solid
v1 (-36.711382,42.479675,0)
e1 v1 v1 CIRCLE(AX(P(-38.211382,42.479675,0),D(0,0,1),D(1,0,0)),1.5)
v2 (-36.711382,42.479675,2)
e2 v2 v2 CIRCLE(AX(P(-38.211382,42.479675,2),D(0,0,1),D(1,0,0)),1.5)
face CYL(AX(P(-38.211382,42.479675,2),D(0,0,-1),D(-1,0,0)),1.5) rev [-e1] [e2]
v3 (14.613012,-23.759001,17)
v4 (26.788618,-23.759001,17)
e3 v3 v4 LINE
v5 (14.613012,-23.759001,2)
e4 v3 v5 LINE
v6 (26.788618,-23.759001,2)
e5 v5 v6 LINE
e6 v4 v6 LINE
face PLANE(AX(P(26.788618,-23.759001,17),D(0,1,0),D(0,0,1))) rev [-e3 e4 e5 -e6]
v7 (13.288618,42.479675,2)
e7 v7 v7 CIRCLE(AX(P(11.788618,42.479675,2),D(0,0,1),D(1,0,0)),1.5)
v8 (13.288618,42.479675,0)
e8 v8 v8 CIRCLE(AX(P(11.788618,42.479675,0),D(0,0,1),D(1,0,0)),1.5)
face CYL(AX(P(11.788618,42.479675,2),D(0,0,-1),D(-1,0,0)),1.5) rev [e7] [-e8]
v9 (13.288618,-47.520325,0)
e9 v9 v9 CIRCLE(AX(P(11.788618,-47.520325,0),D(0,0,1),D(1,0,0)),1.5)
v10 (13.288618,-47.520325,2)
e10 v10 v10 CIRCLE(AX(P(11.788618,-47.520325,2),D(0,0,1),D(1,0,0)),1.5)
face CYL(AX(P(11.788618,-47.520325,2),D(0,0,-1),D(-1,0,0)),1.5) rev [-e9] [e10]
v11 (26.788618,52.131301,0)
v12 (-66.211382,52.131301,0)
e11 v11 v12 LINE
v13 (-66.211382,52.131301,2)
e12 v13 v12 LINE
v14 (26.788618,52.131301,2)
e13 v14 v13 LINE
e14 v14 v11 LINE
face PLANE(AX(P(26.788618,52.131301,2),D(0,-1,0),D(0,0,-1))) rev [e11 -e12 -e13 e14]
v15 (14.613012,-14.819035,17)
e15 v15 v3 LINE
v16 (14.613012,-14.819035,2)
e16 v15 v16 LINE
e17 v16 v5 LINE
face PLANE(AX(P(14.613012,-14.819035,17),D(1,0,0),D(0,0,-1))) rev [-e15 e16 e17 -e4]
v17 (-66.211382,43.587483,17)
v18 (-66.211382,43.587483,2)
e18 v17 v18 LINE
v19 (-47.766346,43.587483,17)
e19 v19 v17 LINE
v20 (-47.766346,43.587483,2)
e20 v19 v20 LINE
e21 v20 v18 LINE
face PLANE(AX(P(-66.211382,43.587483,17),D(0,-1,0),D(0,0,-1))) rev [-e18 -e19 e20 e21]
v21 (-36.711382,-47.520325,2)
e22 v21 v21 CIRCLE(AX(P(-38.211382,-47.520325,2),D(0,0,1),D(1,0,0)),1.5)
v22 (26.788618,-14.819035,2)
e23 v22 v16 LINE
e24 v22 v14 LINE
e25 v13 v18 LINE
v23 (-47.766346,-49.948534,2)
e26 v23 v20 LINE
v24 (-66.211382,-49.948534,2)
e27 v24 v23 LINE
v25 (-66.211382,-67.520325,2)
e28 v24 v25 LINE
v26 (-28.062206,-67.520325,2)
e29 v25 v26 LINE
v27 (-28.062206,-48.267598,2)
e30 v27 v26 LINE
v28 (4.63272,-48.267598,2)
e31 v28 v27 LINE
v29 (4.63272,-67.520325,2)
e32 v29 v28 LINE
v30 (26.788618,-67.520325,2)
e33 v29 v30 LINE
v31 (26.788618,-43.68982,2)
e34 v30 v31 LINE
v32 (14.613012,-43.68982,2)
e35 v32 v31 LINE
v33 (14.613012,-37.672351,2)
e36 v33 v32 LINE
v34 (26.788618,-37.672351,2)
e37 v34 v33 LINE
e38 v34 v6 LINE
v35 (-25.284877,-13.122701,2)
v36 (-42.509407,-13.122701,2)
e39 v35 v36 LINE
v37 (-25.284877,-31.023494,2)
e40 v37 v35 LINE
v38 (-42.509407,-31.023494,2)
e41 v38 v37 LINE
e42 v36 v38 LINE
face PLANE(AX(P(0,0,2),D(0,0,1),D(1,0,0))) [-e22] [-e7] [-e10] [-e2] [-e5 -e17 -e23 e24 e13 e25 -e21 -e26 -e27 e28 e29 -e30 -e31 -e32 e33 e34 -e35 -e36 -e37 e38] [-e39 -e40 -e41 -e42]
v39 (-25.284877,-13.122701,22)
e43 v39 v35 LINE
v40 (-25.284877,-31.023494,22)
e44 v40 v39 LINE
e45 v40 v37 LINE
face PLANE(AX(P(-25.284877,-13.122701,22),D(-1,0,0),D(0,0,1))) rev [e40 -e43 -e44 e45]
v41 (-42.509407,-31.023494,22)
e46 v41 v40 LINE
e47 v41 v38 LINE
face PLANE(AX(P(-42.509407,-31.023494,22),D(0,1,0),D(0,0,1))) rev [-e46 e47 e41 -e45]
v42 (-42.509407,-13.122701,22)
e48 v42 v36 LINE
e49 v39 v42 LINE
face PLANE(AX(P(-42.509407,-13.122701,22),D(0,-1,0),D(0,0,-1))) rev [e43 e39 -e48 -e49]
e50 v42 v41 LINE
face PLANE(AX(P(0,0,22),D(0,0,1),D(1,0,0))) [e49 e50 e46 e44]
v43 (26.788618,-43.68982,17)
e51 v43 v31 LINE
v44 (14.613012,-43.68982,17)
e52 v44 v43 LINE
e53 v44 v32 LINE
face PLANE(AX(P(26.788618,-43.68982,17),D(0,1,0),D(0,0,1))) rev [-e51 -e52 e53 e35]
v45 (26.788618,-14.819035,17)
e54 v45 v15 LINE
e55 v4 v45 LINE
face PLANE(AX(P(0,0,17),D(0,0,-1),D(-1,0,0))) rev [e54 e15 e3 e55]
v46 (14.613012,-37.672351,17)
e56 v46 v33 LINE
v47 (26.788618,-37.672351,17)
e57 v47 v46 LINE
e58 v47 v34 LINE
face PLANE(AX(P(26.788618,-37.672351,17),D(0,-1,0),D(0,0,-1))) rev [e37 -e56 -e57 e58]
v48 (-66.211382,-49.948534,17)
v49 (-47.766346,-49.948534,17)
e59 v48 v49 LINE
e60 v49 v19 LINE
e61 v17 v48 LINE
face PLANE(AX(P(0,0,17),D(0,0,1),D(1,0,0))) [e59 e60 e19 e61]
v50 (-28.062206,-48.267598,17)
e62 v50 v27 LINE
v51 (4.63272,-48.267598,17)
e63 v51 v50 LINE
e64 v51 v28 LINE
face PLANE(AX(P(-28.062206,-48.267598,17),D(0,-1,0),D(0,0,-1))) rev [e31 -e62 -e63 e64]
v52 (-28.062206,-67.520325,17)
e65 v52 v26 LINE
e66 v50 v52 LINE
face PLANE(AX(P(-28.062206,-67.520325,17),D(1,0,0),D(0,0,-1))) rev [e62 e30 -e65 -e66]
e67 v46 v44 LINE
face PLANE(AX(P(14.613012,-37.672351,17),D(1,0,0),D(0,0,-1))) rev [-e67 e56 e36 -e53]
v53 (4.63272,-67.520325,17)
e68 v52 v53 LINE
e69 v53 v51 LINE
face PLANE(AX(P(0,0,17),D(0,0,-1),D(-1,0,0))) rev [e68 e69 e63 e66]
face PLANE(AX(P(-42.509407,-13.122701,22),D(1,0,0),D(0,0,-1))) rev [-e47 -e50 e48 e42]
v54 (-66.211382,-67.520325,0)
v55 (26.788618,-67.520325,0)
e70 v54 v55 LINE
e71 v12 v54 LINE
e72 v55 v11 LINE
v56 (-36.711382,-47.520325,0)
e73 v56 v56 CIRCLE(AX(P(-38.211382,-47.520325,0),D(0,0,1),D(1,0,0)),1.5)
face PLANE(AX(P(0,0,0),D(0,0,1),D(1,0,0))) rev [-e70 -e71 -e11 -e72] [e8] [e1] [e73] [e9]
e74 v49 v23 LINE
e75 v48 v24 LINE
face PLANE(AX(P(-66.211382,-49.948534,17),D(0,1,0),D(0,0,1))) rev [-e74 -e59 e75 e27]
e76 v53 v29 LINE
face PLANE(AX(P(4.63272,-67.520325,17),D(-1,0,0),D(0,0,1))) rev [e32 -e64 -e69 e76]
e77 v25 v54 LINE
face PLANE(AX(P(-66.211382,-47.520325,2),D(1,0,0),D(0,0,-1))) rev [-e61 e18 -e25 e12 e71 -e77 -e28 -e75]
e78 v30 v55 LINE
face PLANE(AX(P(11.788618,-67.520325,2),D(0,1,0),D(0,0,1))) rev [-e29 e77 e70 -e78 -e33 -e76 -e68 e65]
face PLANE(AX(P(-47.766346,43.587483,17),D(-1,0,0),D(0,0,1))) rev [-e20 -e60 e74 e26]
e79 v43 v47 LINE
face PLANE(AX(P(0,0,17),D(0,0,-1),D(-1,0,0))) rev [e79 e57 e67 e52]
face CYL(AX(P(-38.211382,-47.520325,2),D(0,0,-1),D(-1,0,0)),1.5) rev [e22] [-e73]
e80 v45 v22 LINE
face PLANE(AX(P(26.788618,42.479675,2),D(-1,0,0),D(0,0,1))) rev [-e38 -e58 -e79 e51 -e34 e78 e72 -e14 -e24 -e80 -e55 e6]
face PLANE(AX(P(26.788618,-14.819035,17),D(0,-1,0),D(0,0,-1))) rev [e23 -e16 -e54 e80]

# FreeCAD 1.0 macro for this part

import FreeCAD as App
import Part
import Sketcher
from FreeCAD import Vector
Q = App.Units.Quantity

doc = App.newDocument("Part")
body = doc.addObject("PartDesign::Body", "Body")

# Sketch on XY plane
sketch1 = body.newObject("Sketcher::SketchObject", "Sketch")
sketch1.AttachmentSupport = (doc.getObject("XY_Plane"), [""])
sketch1.MapMode = "FlatFace"
sketch1.addGeometry(Part.LineSegment(Vector(-66.2, -67.5, 0), Vector(26.8, -67.5, 0)), False)
sketch1.addGeometry(Part.LineSegment(Vector(26.8, -67.5, 0), Vector(26.8, 52.1, 0)), False)
sketch1.addGeometry(Part.LineSegment(Vector(26.8, 52.1, 0), Vector(-66.2, 52.1, 0)), False)
sketch1.addGeometry(Part.LineSegment(Vector(-66.2, 52.1, 0), Vector(-66.2, -67.5, 0)), False)
sketch1.addGeometry(Part.Circle(Vector(-38.2, -47.5, 0), Vector(0, 0, 1), 1.5), False)
sketch1.addGeometry(Part.Circle(Vector(11.8, -47.5, 0), Vector(0, 0, 1), 1.5), False)
sketch1.addGeometry(Part.Circle(Vector(-38.2, 42.5, 0), Vector(0, 0, 1), 1.5), False)
sketch1.addGeometry(Part.Circle(Vector(11.8, 42.5, 0), Vector(0, 0, 1), 1.5), False)
sketch1.addConstraint(Sketcher.Constraint("Coincident", 0, 2, 1, 1))
sketch1.addConstraint(Sketcher.Constraint("Coincident", 1, 2, 2, 1))
sketch1.addConstraint(Sketcher.Constraint("Coincident", 2, 2, 3, 1))
sketch1.addConstraint(Sketcher.Constraint("Coincident", 3, 2, 0, 1))
sketch1.addConstraint(Sketcher.Constraint("Horizontal", 0))
sketch1.addConstraint(Sketcher.Constraint("Vertical", 1))
sketch1.addConstraint(Sketcher.Constraint("Horizontal", 2))
sketch1.addConstraint(Sketcher.Constraint("Vertical", 3))
sketch1.addConstraint(Sketcher.Constraint("Equal", 4, 5))
sketch1.addConstraint(Sketcher.Constraint("Equal", 5, 6))
sketch1.addConstraint(Sketcher.Constraint("Equal", 6, 7))
sketch1.addConstraint(Sketcher.Constraint("Horizontal", 4, 3, 5, 3))
sketch1.addConstraint(Sketcher.Constraint("Horizontal", 6, 3, 7, 3))
sketch1.addConstraint(Sketcher.Constraint("Vertical", 4, 3, 6, 3))
sketch1.addConstraint(Sketcher.Constraint("Vertical", 5, 3, 7, 3))
sketch1.addConstraint(Sketcher.Constraint("Diameter", 4, Q("3 mm")))
sketch1.addConstraint(Sketcher.Constraint("DistanceX", 0, 1, 0, 2, Q("93 mm")))
sketch1.addConstraint(Sketcher.Constraint("DistanceX", 4, 3, 5, 3, Q("50 mm")))
sketch1.addConstraint(Sketcher.Constraint("DistanceY", 4, 3, 6, 3, Q("90 mm")))
sketch1.addConstraint(Sketcher.Constraint("DistanceX", 5, 3, 0, 2, Q("15 mm")))
sketch1.addConstraint(Sketcher.Constraint("DistanceY", 0, 2, 5, 3, Q("20 mm")))
sketch1.addConstraint(Sketcher.Constraint("DistanceY", -1, 1, 1, 2, Q("52.131301 mm")))
sketch1.addConstraint(Sketcher.Constraint("DistanceY", 1, 1, 1, 2, Q("119.651626 mm")))
sketch1.addConstraint(Sketcher.Constraint("DistanceX", 4, 3, -1, 1, Q("38.211382 mm")))
pad1 = body.newObject("PartDesign::Pad", "Pad")
pad1.Profile = sketch1
pad1.Length = 2

# Sketch on XY plane
sketch2 = body.newObject("Sketcher::SketchObject", "Sketch001")
sketch2.AttachmentSupport = (doc.getObject("XY_Plane"), [""])
sketch2.MapMode = "FlatFace"
sketch2.AttachmentOffset = App.Placement(Vector(0, 0, 2), App.Rotation())
sketch2.addGeometry(Part.LineSegment(Vector(-66, 44, 0), Vector(-66, -50, 0)), False)
sketch2.addGeometry(Part.LineSegment(Vector(-66, -50, 0), Vector(-48, -50, 0)), False)
sketch2.addGeometry(Part.LineSegment(Vector(-48, -50, 0), Vector(-48, 44, 0)), False)
sketch2.addGeometry(Part.LineSegment(Vector(-48, 44, 0), Vector(-66, 44, 0)), False)
sketch2.addGeometry(Part.LineSegment(Vector(-28, -48, 0), Vector(-28, -68, 0)), False)
sketch2.addGeometry(Part.LineSegment(Vector(-28, -68, 0), Vector(5, -68, 0)), False)
sketch2.addGeometry(Part.LineSegment(Vector(5, -68, 0), Vector(5, -48, 0)), False)
sketch2.addGeometry(Part.LineSegment(Vector(5, -48, 0), Vector(-28, -48, 0)), False)
sketch2.addGeometry(Part.LineSegment(Vector(15, -15, 0), Vector(15, -24, 0)), False)
sketch2.addGeometry(Part.LineSegment(Vector(15, -24, 0), Vector(27, -24, 0)), False)
sketch2.addGeometry(Part.LineSegment(Vector(27, -24, 0), Vector(27, -15, 0)), False)
sketch2.addGeometry(Part.LineSegment(Vector(27, -15, 0), Vector(15, -15, 0)), False)
sketch2.addGeometry(Part.LineSegment(Vector(15, -38, 0), Vector(15, -44, 0)), False)
sketch2.addGeometry(Part.LineSegment(Vector(15, -44, 0), Vector(27, -44, 0)), False)
sketch2.addGeometry(Part.LineSegment(Vector(27, -44, 0), Vector(27, -38, 0)), False)
sketch2.addGeometry(Part.LineSegment(Vector(27, -38, 0), Vector(15, -38, 0)), False)
sketch2.addConstraint(Sketcher.Constraint("Coincident", 0, 2, 1, 1))
sketch2.addConstraint(Sketcher.Constraint("Coincident", 1, 2, 2, 1))
sketch2.addConstraint(Sketcher.Constraint("Coincident", 2, 2, 3, 1))
sketch2.addConstraint(Sketcher.Constraint("Coincident", 3, 2, 0, 1))
sketch2.addConstraint(Sketcher.Constraint("Coincident", 4, 2, 5, 1))
sketch2.addConstraint(Sketcher.Constraint("Coincident", 5, 2, 6, 1))
sketch2.addConstraint(Sketcher.Constraint("Coincident", 6, 2, 7, 1))
sketch2.addConstraint(Sketcher.Constraint("Coincident", 7, 2, 4, 1))
sketch2.addConstraint(Sketcher.Constraint("Coincident", 8, 2, 9, 1))
sketch2.addConstraint(Sketcher.Constraint("Coincident", 9, 2, 10, 1))
sketch2.addConstraint(Sketcher.Constraint("Coincident", 10, 2, 11, 1))
sketch2.addConstraint(Sketcher.Constraint("Coincident", 11, 2, 8, 1))
sketch2.addConstraint(Sketcher.Constraint("Coincident", 12, 2, 13, 1))
sketch2.addConstraint(Sketcher.Constraint("Coincident", 13, 2, 14, 1))
sketch2.addConstraint(Sketcher.Constraint("Coincident", 14, 2, 15, 1))
sketch2.addConstraint(Sketcher.Constraint("Coincident", 15, 2, 12, 1))
sketch2.addConstraint(Sketcher.Constraint("Vertical", 0))
sketch2.addConstraint(Sketcher.Constraint("Horizontal", 1))
sketch2.addConstraint(Sketcher.Constraint("Vertical", 2))
sketch2.addConstraint(Sketcher.Constraint("Horizontal", 3))
sketch2.addConstraint(Sketcher.Constraint("Vertical", 4))
sketch2.addConstraint(Sketcher.Constraint("Horizontal", 5))
sketch2.addConstraint(Sketcher.Constraint("Vertical", 6))
sketch2.addConstraint(Sketcher.Constraint("Horizontal", 7))
sketch2.addConstraint(Sketcher.Constraint("Vertical", 8))
sketch2.addConstraint(Sketcher.Constraint("Horizontal", 9))
sketch2.addConstraint(Sketcher.Constraint("Vertical", 10))
sketch2.addConstraint(Sketcher.Constraint("Horizontal", 11))
sketch2.addConstraint(Sketcher.Constraint("Vertical", 12))
sketch2.addConstraint(Sketcher.Constraint("Horizontal", 13))
sketch2.addConstraint(Sketcher.Constraint("Vertical", 14))
sketch2.addConstraint(Sketcher.Constraint("Horizontal", 15))
sketch2.addConstraint(Sketcher.Constraint("Vertical", 11, 2, 12, 2))
sketch2.addConstraint(Sketcher.Constraint("Vertical", 10, 2, 13, 2))
sketch2.addConstraint(Sketcher.Constraint("DistanceY", 8, 2, -1, 1, Q("23.759001 mm")))
sketch2.addConstraint(Sketcher.Constraint("DistanceY", 12, 2, 12, 1, Q("6.017468 mm")))
sketch2.addConstraint(Sketcher.Constraint("DistanceY", 6, 2, -1, 1, Q("48.267598 mm")))
sketch2.addConstraint(Sketcher.Constraint("DistanceX", 1, 1, 1, 2, Q("18.445036 mm")))
sketch2.addConstraint(Sketcher.Constraint("DistanceX", 5, 1, 5, 2, Q("32.694926 mm")))
sketch2.addConstraint(Sketcher.Constraint("DistanceX", 9, 1, 9, 2, Q("12.175605 mm")))
sketch2.addConstraint(Sketcher.Constraint("DistanceY", 0, 2, 0, 1, Q("93.536017 mm")))
sketch2.addConstraint(Sketcher.Constraint("DistanceY", 4, 2, 4, 1, Q("19.252727 mm")))
sketch2.addConstraint(Sketcher.Constraint("DistanceY", 8, 2, 8, 1, Q("8.939965 mm")))
sketch2.addConstraint(Sketcher.Constraint("DistanceX", -1, 1, 5, 2, Q("4.63272 mm")))
sketch2.addConstraint(Sketcher.Constraint("DistanceY", 12, 2, -1, 1, Q("43.68982 mm")))
sketch2.addConstraint(Sketcher.Constraint("DistanceX", 1, 2, 4, 2, Q("19.70414 mm")))
sketch2.addConstraint(Sketcher.Constraint("DistanceY", 4, 2, 1, 2, Q("17.571791 mm")))
sketch2.addConstraint(Sketcher.Constraint("DistanceX", 7, 2, 8, 2, Q("42.675218 mm")))
pad2 = body.newObject("PartDesign::Pad", "Pad001")
pad2.Profile = sketch2
pad2.Length = 15

# Sketch on XY plane
sketch3 = body.newObject("Sketcher::SketchObject", "Sketch002")
sketch3.AttachmentSupport = (doc.getObject("XY_Plane"), [""])
sketch3.MapMode = "FlatFace"
sketch3.AttachmentOffset = App.Placement(Vector(0, 0, 2), App.Rotation())
sketch3.addGeometry(Part.LineSegment(Vector(-43, -13, 0), Vector(-43, -31, 0)), False)
sketch3.addGeometry(Part.LineSegment(Vector(-43, -31, 0), Vector(-25, -31, 0)), False)
sketch3.addGeometry(Part.LineSegment(Vector(-25, -31, 0), Vector(-25, -13, 0)), False)
sketch3.addGeometry(Part.LineSegment(Vector(-25, -13, 0), Vector(-43, -13, 0)), False)
sketch3.addConstraint(Sketcher.Constraint("Coincident", 0, 2, 1, 1))
sketch3.addConstraint(Sketcher.Constraint("Coincident", 1, 2, 2, 1))
sketch3.addConstraint(Sketcher.Constraint("Coincident", 2, 2, 3, 1))
sketch3.addConstraint(Sketcher.Constraint("Coincident", 3, 2, 0, 1))
sketch3.addConstraint(Sketcher.Constraint("Vertical", 0))
sketch3.addConstraint(Sketcher.Constraint("Horizontal", 1))
sketch3.addConstraint(Sketcher.Constraint("Vertical", 2))
sketch3.addConstraint(Sketcher.Constraint("Horizontal", 3))
sketch3.addConstraint(Sketcher.Constraint("DistanceX", 1, 1, 1, 2, Q("17.22453 mm")))
sketch3.addConstraint(Sketcher.Constraint("DistanceY", 2, 2, -1, 1, Q("13.122701 mm")))
sketch3.addConstraint(Sketcher.Constraint("DistanceY", 0, 2, 0, 1, Q("17.900793 mm")))
sketch3.addConstraint(Sketcher.Constraint("DistanceX", 0, 2, -1, 1, Q("42.509407 mm")))
pad3 = body.newObject("PartDesign::Pad", "Pad002")
pad3.Profile = sketch3
pad3.Length = 20

doc.recompute()
